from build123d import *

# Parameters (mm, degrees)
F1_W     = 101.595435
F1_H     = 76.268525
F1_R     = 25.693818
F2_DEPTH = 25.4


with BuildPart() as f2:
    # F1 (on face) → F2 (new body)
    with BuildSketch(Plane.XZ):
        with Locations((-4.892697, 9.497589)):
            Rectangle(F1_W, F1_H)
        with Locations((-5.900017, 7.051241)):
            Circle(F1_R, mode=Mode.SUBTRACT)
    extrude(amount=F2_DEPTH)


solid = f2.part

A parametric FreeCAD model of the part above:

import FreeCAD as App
import Part
import Sketcher
Q = App.Units.Quantity

doc = App.newDocument("Part")
body = doc.addObject("PartDesign::Body", "Body")

# Sketch on XZ plane
sketch1 = body.newObject("Sketcher::SketchObject", "Sketch")
sketch1.AttachmentSupport = (doc.getObject("XZ_Plane"), [""])
sketch1.MapMode = "FlatFace"
sketch1.addGeometry([
    Part.LineSegment(App.Vector(-55.690415, 47.631852, 0), App.Vector(-55.690415, -28.636674, 0)),  # 0
    Part.LineSegment(App.Vector(-55.690415, -28.636674, 0), App.Vector(45.90502, -28.636674, 0)),  # 1
    Part.LineSegment(App.Vector(45.90502, -28.636674, 0), App.Vector(45.90502, 47.631852, 0)),  # 2
    Part.LineSegment(App.Vector(45.90502, 47.631852, 0), App.Vector(-55.690415, 47.631852, 0)),  # 3
    Part.Circle(App.Vector(-5.900017, 7.051241, 0), App.Vector(0, 0, 1), 25.693818),  # 4
], False)
sketch1.addConstraint([
    Sketcher.Constraint("Coincident", 0, 2, 1, 1),
    Sketcher.Constraint("Coincident", 1, 2, 2, 1),
    Sketcher.Constraint("Coincident", 2, 2, 3, 1),
    Sketcher.Constraint("Coincident", 3, 2, 0, 1),
    Sketcher.Constraint("Vertical", 0),
    Sketcher.Constraint("Horizontal", 1),
    Sketcher.Constraint("Vertical", 2),
    Sketcher.Constraint("Horizontal", 3),
    Sketcher.Constraint("Diameter", 4, Q("51.387636 mm")),
    Sketcher.Constraint("DistanceX", 1, 1, 1, 2, Q("101.595435 mm")),
    Sketcher.Constraint("DistanceY", 0, 2, 0, 1, Q("76.268525 mm")),
    Sketcher.Constraint("DistanceY", -1, 1, 4, 3, Q("7.051241 mm")),
    Sketcher.Constraint("DistanceX", -1, 1, 1, 2, Q("45.90502 mm")),
    Sketcher.Constraint("DistanceY", -1, 1, 2, 2, Q("47.631852 mm")),
    Sketcher.Constraint("DistanceX", 4, 3, -1, 1, Q("5.900017 mm")),
])
pad1 = body.newObject("PartDesign::Pad", "Pad")
pad1.Profile = sketch1
pad1.Length = Q("1 in")

doc.recompute()
